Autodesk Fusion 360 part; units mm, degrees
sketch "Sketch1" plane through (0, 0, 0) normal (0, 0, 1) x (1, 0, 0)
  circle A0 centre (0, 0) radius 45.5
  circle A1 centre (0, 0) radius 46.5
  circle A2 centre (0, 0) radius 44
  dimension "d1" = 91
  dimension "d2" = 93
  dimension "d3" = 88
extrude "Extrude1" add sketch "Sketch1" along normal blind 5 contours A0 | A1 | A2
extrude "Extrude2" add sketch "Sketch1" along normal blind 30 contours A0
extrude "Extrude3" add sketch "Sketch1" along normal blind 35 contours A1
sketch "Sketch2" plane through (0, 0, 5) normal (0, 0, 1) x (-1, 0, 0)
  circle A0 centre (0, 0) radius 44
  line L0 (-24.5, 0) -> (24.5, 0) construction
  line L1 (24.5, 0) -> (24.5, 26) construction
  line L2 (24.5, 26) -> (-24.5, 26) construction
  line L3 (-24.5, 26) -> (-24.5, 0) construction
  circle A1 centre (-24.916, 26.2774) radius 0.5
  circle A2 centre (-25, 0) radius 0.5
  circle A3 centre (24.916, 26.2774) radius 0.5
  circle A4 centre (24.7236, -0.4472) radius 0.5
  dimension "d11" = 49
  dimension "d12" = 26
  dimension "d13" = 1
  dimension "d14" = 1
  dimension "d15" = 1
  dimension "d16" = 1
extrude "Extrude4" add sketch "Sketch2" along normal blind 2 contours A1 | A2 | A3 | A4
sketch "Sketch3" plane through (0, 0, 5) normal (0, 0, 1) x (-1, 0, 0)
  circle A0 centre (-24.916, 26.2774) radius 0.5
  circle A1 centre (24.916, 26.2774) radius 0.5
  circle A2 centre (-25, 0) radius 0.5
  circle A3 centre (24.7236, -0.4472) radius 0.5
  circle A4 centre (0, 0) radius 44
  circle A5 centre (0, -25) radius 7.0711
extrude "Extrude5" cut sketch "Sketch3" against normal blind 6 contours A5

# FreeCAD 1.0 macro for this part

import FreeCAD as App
import Part
import Sketcher

doc = App.newDocument("Part")
params = doc.addObject("Spreadsheet::Sheet", "Params")
for row, (alias, value) in enumerate([
    ("sketch1_diameter", "93 mm"),
    ("pad1_length", "5 mm"),
    ("sketch2_diameter", "91 mm"),
    ("sketch2_diameter2", "88 mm"),
    ("pad2_length", "30 mm"),
    ("sketch3_diameter", "93 mm"),
    ("sketch3_diameter2", "91 mm"),
    ("pad3_length", "35 mm"),
    ("sketch4_diameter", "1 mm"),
    ("pad4_length", "2 mm"),
    ("pocket1_length", "6 mm"),
], start=1):
    params.set(f"A{row}", alias)
    params.set(f"B{row}", "=" + value)
    params.setAlias(f"B{row}", alias)

body = doc.addObject("PartDesign::Body", "Body")

# Sketch on XY plane
sketch1 = body.newObject("Sketcher::SketchObject", "Sketch")
sketch1.AttachmentSupport = (doc.getObject("XY_Plane"), [""])
sketch1.MapMode = "FlatFace"
sketch1.addGeometry(Part.Circle(App.Vector(0, 0, 0), App.Vector(0, 0, 1), 46), False)
sketch1.addConstraint([
    Sketcher.Constraint("Coincident", 0, 3, -1, 1),
    Sketcher.Constraint("Diameter", 0, 93.0),
])
sketch1.setExpression("Constraints[1]", "Params.sketch1_diameter")
pad1 = body.newObject("PartDesign::Pad", "Pad")
pad1.Profile = sketch1
pad1.setExpression("Length", "Params.pad1_length")

# Sketch on XY plane
sketch2 = body.newObject("Sketcher::SketchObject", "Sketch001")
sketch2.AttachmentSupport = (doc.getObject("XY_Plane"), [""])
sketch2.MapMode = "FlatFace"
sketch2.addGeometry([
    Part.Circle(App.Vector(0, 0, 0), App.Vector(0, 0, 1), 46),
    Part.Circle(App.Vector(0, 0, 0), App.Vector(0, 0, 1), 44),
], False)
sketch2.addConstraint([
    Sketcher.Constraint("Coincident", 0, 3, -1, 1),
    Sketcher.Constraint("Coincident", 1, 3, -1, 1),
    Sketcher.Constraint("Diameter", 0, 91.0),
    Sketcher.Constraint("Diameter", 1, 88.0),
])
sketch2.setExpression("Constraints[2]", "Params.sketch2_diameter")
sketch2.setExpression("Constraints[3]", "Params.sketch2_diameter2")
pad2 = body.newObject("PartDesign::Pad", "Pad001")
pad2.Profile = sketch2
pad2.setExpression("Length", "Params.pad2_length")

# Sketch on XY plane
sketch3 = body.newObject("Sketcher::SketchObject", "Sketch002")
sketch3.AttachmentSupport = (doc.getObject("XY_Plane"), [""])
sketch3.MapMode = "FlatFace"
sketch3.addGeometry([
    Part.Circle(App.Vector(0, 0, 0), App.Vector(0, 0, 1), 46),
    Part.Circle(App.Vector(0, 0, 0), App.Vector(0, 0, 1), 46),
], False)
sketch3.addConstraint([
    Sketcher.Constraint("Coincident", 0, 3, -1, 1),
    Sketcher.Constraint("Coincident", 1, 3, -1, 1),
    Sketcher.Constraint("Diameter", 0, 93.0),
    Sketcher.Constraint("Diameter", 1, 91.0),
])
sketch3.setExpression("Constraints[2]", "Params.sketch3_diameter")
sketch3.setExpression("Constraints[3]", "Params.sketch3_diameter2")
pad3 = body.newObject("PartDesign::Pad", "Pad002")
pad3.Profile = sketch3
pad3.setExpression("Length", "Params.pad3_length")

# Sketch on XY plane
sketch4 = body.newObject("Sketcher::SketchObject", "Sketch003")
sketch4.AttachmentSupport = (doc.getObject("XY_Plane"), [""])
sketch4.MapMode = "FlatFace"
sketch4.AttachmentOffset = App.Placement(App.Vector(0, 0, 5), App.Rotation())
sketch4.addGeometry([
    Part.Circle(App.Vector(24.9, -26.3, 0), App.Vector(0, 0, 1), 0.5),
    Part.Circle(App.Vector(25, 0, 0), App.Vector(0, 0, 1), 0.5),
    Part.Circle(App.Vector(-24.9, -26.3, 0), App.Vector(0, 0, 1), 0.5),
    Part.Circle(App.Vector(-24.7, 0.4, 0), App.Vector(0, 0, 1), 0.5),
], False)
sketch4.addConstraint([
    Sketcher.Constraint("Equal", 0, 1),
    Sketcher.Constraint("Equal", 1, 2),
    Sketcher.Constraint("Equal", 2, 3),
    Sketcher.Constraint("Symmetric", 0, 3, 2, 3, -2),
    Sketcher.Constraint("PointOnObject", 1, 3, -1),
    Sketcher.Constraint("Diameter", 0, 1.0),
    Sketcher.Constraint("DistanceX", -1, 1, 1, 3, 25.0),
    Sketcher.Constraint("DistanceX", -1, 1, 0, 3, 24.916),
    Sketcher.Constraint("DistanceY", 0, 3, -1, 1, 26.2774),
    Sketcher.Constraint("DistanceX", 3, 3, -1, 1, 24.7236),
    Sketcher.Constraint("DistanceY", -1, 1, 3, 3, 0.4472),
])
sketch4.setExpression("Constraints[5]", "Params.sketch4_diameter")
pad4 = body.newObject("PartDesign::Pad", "Pad003")
pad4.Profile = sketch4
pad4.setExpression("Length", "Params.pad4_length")

# Sketch on XY plane
sketch5 = body.newObject("Sketcher::SketchObject", "Sketch004")
sketch5.AttachmentSupport = (doc.getObject("XY_Plane"), [""])
sketch5.MapMode = "FlatFace"
sketch5.AttachmentOffset = App.Placement(App.Vector(0, 0, 5), App.Rotation())
sketch5.addGeometry(Part.Circle(App.Vector(0, 25, 0), App.Vector(0, 0, 1), 7), False)
sketch5.addConstraint([
    Sketcher.Constraint("PointOnObject", 0, 3, -2),
    Sketcher.Constraint("DistanceY", -1, 1, 0, 3, 25.0),
    Sketcher.Constraint("Diameter", 0, 14.1422),
])
pocket1 = body.newObject("PartDesign::Pocket", "Pocket")
pocket1.Profile = sketch5
pocket1.setExpression("Length", "Params.pocket1_length")

doc.recompute()
